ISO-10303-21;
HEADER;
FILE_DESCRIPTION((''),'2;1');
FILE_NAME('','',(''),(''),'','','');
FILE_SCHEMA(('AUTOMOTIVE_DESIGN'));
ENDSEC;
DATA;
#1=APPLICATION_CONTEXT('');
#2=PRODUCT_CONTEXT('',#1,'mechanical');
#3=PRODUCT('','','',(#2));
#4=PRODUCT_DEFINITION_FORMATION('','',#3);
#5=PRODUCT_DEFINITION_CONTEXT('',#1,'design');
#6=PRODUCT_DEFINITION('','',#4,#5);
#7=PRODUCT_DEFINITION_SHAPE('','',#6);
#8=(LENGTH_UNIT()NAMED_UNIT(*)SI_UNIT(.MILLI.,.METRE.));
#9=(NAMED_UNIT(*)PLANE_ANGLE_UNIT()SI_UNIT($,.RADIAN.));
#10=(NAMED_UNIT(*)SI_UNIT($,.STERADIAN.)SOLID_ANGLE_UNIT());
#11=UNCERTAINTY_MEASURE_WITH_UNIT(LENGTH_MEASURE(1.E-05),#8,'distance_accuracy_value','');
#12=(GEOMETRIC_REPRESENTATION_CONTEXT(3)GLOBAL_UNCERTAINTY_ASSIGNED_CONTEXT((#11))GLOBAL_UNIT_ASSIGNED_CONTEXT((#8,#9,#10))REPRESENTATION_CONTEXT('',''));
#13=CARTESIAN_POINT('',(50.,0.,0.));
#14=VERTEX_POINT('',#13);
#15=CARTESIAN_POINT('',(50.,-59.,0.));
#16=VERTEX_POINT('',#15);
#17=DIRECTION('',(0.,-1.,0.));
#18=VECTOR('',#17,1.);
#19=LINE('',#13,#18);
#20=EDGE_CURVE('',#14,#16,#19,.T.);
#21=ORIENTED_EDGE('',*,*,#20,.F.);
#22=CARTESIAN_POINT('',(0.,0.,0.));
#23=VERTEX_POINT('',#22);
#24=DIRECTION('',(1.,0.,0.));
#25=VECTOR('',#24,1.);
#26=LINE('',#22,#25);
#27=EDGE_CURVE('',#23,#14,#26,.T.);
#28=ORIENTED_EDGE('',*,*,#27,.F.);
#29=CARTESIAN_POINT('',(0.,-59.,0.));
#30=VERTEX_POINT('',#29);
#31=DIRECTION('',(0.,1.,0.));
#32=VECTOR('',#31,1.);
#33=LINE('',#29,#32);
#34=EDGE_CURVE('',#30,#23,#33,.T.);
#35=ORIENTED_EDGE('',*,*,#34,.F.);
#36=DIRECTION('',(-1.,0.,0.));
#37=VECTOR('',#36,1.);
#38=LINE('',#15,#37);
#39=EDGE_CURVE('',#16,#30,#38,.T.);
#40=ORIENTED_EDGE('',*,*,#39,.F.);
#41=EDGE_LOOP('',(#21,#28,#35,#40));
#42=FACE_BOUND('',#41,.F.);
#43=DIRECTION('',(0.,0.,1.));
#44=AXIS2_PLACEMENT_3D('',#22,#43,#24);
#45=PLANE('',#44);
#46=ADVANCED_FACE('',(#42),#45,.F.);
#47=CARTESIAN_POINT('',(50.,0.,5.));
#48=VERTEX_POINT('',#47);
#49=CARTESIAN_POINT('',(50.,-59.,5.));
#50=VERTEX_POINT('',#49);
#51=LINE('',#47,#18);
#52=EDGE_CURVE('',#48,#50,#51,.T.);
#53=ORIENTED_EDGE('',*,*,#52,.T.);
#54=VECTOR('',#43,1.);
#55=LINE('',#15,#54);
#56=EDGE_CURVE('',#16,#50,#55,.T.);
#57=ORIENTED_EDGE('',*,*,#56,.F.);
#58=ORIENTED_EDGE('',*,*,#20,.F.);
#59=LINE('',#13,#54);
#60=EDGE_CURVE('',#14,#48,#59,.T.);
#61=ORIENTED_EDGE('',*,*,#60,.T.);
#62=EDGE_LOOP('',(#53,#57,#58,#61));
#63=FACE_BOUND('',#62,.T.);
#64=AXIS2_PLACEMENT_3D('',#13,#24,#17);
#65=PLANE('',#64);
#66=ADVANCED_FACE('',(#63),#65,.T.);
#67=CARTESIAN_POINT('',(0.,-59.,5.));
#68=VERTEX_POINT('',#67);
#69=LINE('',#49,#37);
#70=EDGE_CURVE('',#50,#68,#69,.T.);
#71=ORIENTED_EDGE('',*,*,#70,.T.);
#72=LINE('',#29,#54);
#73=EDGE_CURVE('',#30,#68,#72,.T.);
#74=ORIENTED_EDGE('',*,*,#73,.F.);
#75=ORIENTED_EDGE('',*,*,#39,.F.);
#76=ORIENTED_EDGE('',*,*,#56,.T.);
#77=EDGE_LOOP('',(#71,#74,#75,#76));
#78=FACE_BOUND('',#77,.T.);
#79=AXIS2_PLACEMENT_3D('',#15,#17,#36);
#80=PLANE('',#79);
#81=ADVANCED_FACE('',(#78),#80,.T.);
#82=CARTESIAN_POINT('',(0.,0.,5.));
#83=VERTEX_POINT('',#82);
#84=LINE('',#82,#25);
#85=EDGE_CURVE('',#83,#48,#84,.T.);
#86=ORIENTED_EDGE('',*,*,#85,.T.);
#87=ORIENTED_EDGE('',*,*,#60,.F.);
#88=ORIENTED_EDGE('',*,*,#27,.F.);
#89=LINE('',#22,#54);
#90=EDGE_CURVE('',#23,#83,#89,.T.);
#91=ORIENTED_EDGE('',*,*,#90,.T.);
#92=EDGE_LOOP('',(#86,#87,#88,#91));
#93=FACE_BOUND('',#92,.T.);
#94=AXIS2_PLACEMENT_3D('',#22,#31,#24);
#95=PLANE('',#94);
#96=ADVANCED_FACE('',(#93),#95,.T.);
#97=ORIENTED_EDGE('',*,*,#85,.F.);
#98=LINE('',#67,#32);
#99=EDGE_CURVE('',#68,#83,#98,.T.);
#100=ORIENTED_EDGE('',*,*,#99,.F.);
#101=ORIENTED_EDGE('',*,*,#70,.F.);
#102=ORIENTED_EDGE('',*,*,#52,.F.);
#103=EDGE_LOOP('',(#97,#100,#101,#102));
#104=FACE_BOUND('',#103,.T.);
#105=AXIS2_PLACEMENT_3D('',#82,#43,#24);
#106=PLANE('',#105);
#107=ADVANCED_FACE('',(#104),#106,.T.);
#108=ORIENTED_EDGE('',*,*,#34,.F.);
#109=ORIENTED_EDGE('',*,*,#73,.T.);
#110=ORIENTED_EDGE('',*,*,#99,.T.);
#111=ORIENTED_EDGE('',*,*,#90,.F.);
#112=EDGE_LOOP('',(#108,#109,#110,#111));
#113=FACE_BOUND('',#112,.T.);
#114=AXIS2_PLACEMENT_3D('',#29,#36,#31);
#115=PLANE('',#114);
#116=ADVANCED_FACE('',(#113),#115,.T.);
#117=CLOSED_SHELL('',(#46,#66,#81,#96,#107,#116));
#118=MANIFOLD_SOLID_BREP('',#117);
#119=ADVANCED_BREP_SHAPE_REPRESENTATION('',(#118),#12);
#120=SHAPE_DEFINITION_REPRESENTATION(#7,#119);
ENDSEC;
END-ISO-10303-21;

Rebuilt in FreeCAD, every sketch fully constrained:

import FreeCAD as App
import Part
import Sketcher

V = App.Vector
Q = App.Units.Quantity

doc = App.newDocument("Part")
body = doc.addObject("PartDesign::Body", "Body")

# Sketch on XY plane
sketch1 = doc.addObject("Sketcher::SketchObject", "Sketch")
body.addObject(sketch1)
sketch1.AttachmentSupport = (doc.XY_Plane, [""])
sketch1.MapMode = "FlatFace"
sketch1.addGeometry([
    Part.LineSegment(V(50, 0, 0), V(0, 0, 0)),
    Part.LineSegment(V(0, 0, 0), V(0, -59, 0)),
    Part.LineSegment(V(0, -59, 0), V(50, -59, 0)),
    Part.LineSegment(V(50, -59, 0), V(50, 0, 0)),
], False)
sketch1.addConstraint([
    Sketcher.Constraint("Coincident", 0, 2, 1, 1),
    Sketcher.Constraint("Coincident", 1, 2, 2, 1),
    Sketcher.Constraint("Coincident", 2, 2, 3, 1),
    Sketcher.Constraint("Coincident", 3, 2, 0, 1),
    Sketcher.Constraint("Horizontal", 0),
    Sketcher.Constraint("Vertical", 1),
    Sketcher.Constraint("Horizontal", 2),
    Sketcher.Constraint("Vertical", 3),
    Sketcher.Constraint("Coincident", 0, 2, -1, 1),
    Sketcher.Constraint("DistanceX", 0, 2, 0, 1, Q("50 mm")),
    Sketcher.Constraint("DistanceY", 1, 2, 1, 1, Q("59 mm")),
])
pad1 = doc.addObject("PartDesign::Pad", "Pad")
body.addObject(pad1)
pad1.Profile = sketch1
pad1.Length = 5

doc.recompute()
